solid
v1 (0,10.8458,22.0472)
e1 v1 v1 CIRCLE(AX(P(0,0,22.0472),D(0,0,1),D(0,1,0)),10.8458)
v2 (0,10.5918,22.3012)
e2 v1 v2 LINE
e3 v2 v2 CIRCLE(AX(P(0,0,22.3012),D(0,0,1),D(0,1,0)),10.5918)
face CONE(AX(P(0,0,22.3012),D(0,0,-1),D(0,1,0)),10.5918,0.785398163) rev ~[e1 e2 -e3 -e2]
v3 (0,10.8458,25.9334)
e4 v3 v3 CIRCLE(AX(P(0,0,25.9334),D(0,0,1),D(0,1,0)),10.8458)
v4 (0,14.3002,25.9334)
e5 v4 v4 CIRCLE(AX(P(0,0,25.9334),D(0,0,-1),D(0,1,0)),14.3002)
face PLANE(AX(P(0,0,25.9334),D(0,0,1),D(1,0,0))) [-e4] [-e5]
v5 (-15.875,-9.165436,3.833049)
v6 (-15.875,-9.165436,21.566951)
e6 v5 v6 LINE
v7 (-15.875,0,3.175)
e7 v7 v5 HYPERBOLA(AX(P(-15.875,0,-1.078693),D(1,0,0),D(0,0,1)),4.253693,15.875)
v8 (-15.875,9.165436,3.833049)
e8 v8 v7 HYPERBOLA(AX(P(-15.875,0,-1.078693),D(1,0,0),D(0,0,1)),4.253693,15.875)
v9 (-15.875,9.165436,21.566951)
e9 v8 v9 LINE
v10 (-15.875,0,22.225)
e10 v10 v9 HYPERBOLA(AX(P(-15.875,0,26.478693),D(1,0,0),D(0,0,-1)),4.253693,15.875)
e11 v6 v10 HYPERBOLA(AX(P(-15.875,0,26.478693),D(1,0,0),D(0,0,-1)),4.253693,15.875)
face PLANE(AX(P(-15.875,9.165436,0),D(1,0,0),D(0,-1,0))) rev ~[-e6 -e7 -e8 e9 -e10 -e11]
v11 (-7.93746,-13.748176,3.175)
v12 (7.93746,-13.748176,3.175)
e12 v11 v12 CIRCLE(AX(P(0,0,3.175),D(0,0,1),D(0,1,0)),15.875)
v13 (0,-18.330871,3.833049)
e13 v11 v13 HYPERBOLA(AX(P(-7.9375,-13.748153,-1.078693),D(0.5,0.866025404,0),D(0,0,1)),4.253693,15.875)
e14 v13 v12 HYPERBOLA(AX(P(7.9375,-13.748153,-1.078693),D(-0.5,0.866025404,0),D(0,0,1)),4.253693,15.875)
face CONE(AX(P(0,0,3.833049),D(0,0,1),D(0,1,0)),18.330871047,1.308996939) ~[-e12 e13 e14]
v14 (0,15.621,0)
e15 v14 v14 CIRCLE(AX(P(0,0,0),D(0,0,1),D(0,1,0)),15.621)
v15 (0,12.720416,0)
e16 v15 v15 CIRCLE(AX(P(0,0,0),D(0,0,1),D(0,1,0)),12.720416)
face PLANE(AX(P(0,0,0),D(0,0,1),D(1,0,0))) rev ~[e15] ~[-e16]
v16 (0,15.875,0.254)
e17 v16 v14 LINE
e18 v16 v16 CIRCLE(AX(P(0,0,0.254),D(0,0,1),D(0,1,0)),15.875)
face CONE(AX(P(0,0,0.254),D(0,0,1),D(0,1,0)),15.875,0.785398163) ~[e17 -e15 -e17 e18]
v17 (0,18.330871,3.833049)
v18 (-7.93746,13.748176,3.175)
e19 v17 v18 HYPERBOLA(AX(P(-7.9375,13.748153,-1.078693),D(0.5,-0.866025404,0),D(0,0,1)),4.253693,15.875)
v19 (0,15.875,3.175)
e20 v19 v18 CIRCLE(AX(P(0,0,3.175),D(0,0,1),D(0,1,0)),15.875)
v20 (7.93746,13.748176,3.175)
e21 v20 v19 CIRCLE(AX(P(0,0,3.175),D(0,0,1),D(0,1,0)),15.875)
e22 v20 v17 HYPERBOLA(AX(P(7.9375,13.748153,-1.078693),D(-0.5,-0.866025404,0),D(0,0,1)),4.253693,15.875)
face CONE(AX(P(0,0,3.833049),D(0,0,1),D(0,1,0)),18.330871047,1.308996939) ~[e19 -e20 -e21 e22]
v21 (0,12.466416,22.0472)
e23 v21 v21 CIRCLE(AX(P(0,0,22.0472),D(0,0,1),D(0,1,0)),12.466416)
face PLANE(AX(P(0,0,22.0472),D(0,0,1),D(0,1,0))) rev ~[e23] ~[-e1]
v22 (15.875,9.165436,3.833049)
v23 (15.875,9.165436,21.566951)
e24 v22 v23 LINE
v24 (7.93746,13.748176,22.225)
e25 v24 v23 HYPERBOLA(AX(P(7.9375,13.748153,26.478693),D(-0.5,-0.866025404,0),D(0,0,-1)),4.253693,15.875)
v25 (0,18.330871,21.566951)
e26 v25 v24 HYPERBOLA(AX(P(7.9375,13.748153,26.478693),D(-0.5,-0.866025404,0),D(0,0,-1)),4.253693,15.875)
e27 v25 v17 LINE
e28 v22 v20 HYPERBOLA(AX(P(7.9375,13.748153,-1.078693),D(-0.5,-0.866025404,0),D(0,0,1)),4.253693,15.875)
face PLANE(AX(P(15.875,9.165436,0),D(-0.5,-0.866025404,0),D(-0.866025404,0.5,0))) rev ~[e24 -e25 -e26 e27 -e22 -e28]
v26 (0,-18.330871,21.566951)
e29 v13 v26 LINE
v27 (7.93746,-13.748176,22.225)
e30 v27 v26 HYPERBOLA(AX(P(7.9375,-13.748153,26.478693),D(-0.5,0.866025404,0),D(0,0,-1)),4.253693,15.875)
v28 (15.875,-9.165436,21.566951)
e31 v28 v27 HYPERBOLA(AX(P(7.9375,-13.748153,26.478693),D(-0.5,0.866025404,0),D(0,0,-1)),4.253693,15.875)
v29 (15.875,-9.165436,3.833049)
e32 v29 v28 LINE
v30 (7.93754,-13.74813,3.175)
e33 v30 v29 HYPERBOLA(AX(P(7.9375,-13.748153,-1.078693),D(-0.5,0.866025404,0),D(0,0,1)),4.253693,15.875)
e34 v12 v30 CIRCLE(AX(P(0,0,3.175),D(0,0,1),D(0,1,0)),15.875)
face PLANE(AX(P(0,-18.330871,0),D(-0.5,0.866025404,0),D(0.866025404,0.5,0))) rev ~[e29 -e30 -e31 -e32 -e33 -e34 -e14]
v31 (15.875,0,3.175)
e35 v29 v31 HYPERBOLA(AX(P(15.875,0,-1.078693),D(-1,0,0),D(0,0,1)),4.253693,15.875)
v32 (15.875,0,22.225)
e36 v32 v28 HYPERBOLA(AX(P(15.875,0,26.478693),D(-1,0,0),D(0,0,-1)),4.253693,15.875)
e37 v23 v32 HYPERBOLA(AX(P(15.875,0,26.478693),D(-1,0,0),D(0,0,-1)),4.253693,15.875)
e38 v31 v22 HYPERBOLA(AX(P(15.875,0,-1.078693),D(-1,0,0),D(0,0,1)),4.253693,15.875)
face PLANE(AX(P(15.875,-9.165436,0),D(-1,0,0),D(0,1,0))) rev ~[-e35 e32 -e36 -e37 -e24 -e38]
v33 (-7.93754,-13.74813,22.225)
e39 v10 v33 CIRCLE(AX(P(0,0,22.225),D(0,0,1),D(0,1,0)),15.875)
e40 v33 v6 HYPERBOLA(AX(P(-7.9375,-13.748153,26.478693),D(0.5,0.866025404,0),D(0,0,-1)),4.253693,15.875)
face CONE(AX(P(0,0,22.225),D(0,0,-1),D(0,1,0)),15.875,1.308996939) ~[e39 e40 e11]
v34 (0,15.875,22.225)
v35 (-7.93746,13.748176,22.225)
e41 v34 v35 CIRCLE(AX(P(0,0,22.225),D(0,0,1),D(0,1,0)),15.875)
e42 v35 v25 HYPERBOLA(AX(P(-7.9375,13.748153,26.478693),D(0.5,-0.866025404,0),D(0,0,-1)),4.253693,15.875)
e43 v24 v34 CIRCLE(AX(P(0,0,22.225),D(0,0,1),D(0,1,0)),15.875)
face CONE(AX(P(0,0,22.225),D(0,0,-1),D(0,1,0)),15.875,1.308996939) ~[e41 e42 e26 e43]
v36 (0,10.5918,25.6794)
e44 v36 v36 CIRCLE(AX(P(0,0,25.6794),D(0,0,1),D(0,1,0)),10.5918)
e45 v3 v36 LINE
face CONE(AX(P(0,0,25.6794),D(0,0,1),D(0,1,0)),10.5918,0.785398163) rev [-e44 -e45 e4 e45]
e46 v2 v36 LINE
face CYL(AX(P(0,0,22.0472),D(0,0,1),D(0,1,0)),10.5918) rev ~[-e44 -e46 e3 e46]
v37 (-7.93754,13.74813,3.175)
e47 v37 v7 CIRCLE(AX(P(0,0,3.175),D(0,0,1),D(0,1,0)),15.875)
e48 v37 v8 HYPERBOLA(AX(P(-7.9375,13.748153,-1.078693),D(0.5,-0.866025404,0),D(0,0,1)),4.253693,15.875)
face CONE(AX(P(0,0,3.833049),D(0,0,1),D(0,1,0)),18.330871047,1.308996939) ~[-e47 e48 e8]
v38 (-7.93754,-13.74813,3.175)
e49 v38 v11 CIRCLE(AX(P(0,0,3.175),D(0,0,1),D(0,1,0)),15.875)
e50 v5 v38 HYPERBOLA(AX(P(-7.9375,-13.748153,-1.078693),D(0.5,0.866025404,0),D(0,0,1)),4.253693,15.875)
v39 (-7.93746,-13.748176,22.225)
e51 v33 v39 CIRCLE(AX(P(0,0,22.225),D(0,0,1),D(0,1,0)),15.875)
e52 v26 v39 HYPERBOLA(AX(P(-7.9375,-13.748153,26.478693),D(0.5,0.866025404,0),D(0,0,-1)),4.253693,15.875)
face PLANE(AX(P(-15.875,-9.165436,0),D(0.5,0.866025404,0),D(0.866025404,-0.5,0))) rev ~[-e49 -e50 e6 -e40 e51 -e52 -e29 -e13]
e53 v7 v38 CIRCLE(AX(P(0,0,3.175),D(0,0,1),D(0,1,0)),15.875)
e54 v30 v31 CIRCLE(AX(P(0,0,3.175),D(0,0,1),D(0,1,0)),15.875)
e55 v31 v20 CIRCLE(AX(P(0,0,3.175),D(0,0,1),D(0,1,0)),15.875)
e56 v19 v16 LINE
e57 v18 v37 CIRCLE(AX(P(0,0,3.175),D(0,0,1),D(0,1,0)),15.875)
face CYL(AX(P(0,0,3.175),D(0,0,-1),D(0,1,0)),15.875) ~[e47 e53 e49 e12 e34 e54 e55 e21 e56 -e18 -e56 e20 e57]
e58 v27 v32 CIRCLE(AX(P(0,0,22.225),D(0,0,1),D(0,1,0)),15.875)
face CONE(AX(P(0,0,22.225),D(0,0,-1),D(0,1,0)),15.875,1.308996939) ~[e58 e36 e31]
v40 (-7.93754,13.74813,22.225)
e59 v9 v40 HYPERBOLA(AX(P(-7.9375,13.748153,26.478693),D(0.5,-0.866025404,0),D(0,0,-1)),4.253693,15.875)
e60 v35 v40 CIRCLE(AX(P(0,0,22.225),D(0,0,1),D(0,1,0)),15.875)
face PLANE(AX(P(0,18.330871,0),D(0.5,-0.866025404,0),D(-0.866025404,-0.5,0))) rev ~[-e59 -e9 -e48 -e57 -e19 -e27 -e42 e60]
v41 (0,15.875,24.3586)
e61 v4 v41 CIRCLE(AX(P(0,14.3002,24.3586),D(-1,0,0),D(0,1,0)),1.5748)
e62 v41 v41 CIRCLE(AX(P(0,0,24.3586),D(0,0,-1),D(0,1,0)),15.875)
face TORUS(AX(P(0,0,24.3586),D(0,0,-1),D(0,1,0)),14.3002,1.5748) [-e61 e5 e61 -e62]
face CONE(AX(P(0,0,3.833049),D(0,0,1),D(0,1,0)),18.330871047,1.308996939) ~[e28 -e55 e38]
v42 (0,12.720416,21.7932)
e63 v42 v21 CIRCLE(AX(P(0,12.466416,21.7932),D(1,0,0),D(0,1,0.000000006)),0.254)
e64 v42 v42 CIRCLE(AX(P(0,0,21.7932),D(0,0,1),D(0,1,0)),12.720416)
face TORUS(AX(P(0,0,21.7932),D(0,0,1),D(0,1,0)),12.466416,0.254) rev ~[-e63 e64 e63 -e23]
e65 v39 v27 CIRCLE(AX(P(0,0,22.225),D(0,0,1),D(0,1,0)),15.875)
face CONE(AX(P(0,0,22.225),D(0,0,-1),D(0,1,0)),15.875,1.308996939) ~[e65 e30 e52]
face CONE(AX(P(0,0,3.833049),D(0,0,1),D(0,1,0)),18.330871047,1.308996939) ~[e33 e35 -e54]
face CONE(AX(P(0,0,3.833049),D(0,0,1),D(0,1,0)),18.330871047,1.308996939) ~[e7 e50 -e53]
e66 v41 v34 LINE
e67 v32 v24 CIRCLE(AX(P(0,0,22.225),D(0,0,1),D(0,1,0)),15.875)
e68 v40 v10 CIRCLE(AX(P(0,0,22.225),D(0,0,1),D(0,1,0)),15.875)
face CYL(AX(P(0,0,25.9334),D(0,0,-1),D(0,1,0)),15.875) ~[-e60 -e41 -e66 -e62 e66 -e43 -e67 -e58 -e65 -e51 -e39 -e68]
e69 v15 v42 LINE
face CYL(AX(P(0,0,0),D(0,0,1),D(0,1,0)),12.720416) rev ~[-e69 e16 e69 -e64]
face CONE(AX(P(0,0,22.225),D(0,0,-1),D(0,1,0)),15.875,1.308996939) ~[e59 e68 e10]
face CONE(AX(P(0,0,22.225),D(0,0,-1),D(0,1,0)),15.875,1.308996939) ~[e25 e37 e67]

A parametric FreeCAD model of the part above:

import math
import FreeCAD as App
import Part
import Sketcher
from FreeCAD import Vector
Q = App.Units.Quantity


def edges_at(feature, points):
    """Names of the edges that pass closest to the given points."""
    edges = feature.Shape.Edges
    near = lambda p: min(range(len(edges)), key=lambda i: edges[i].distToShape(Part.Vertex(*p))[0])
    return sorted({f"Edge{near(p) + 1}" for p in points})

doc = App.newDocument("Part")
body = doc.addObject("PartDesign::Body", "Body")

sketch1 = body.newObject("Sketcher::SketchObject", "Sketch")
sketch1.AttachmentSupport = (doc.getObject("XY_Plane"), [""])
sketch1.MapMode = "FlatFace"
sketch1.addGeometry(Part.LineSegment(Vector(0, 18, 0), Vector(-16, 9, 0)), False)
sketch1.addGeometry(Part.LineSegment(Vector(-16, 9, 0), Vector(-16, -9, 0)), False)
sketch1.addGeometry(Part.LineSegment(Vector(-16, -9, 0), Vector(0, -18, 0)), False)
sketch1.addGeometry(Part.LineSegment(Vector(0, -18, 0), Vector(16, -9, 0)), False)
sketch1.addGeometry(Part.LineSegment(Vector(16, -9, 0), Vector(16, 9, 0)), False)
sketch1.addGeometry(Part.LineSegment(Vector(16, 9, 0), Vector(0, 18, 0)), False)
sketch1.addConstraint(Sketcher.Constraint("Coincident", 0, 2, 1, 1))
sketch1.addConstraint(Sketcher.Constraint("Coincident", 1, 2, 2, 1))
sketch1.addConstraint(Sketcher.Constraint("Coincident", 2, 2, 3, 1))
sketch1.addConstraint(Sketcher.Constraint("Coincident", 3, 2, 4, 1))
sketch1.addConstraint(Sketcher.Constraint("Coincident", 4, 2, 5, 1))
sketch1.addConstraint(Sketcher.Constraint("Coincident", 5, 2, 0, 1))
sketch1.addConstraint(Sketcher.Constraint("Vertical", 1))
sketch1.addConstraint(Sketcher.Constraint("Vertical", 4))
sketch1.addConstraint(Sketcher.Constraint("Symmetric", 0, 2, 3, 2, -1, 1))
sketch1.addConstraint(Sketcher.Constraint("Symmetric", 2, 2, 5, 2, -1, 1))
sketch1.addConstraint(Sketcher.Constraint("PointOnObject", 2, 2, -2))
sketch1.addConstraint(Sketcher.Constraint("Parallel", 2, 5))
sketch1.addConstraint(Sketcher.Constraint("Horizontal", 1, 2, 3, 2))
sketch1.addConstraint(Sketcher.Constraint("Angle", 0, Q("-150 deg")))
sketch1.addConstraint(Sketcher.Constraint("DistanceX", 1, 2, 3, 2, Q("1.25 in")))
sketch1.addConstraint(Sketcher.Constraint("DistanceY", 1, 2, 1, 1, 18.330871))
pad1 = body.newObject("PartDesign::Pad", "Pad")
pad1.Profile = sketch1
pad1.Length = Q("1.021 in")

sketch2 = body.newObject("Sketcher::SketchObject", "Sketch001")
sketch2.AttachmentSupport = (doc.getObject("YZ_Plane"), [""])
sketch2.MapMode = "FlatFace"
sketch2.addGeometry(Part.LineSegment(Vector(20.79, 25.93, 0), Vector(15.88, 25.93, 0)), False)
sketch2.addGeometry(Part.LineSegment(Vector(15.88, 25.93, 0), Vector(15.88, 22.23, 0)), False)
sketch2.addGeometry(Part.LineSegment(Vector(15.88, 22.23, 0), Vector(18.33, 21.57, 0)), False)
sketch2.addGeometry(Part.LineSegment(Vector(18.33, 21.57, 0), Vector(18.33, 3.83, 0)), False)
sketch2.addGeometry(Part.LineSegment(Vector(18.33, 3.83, 0), Vector(15.88, 3.17, 0)), False)
sketch2.addGeometry(Part.LineSegment(Vector(15.88, 3.17, 0), Vector(15.88, 0, 0)), False)
sketch2.addGeometry(Part.LineSegment(Vector(15.88, 0, 0), Vector(20.79, 0, 0)), False)
sketch2.addGeometry(Part.LineSegment(Vector(20.79, 0, 0), Vector(20.79, 25.93, 0)), False)
sketch2.addGeometry(Part.LineSegment(Vector(10.59, 25.93, 0), Vector(0, 25.93, 0)), False)
sketch2.addGeometry(Part.LineSegment(Vector(0, 25.93, 0), Vector(0, 0, 0)), False)
sketch2.addGeometry(Part.LineSegment(Vector(0, 0, 0), Vector(12.72, 0, 0)), False)
sketch2.addGeometry(Part.LineSegment(Vector(12.72, 0, 0), Vector(12.72, 21.79, 0)), False)
sketch2.addGeometry(Part.ArcOfCircle(Part.Circle(Vector(12.47, 21.79, 0), Vector(0, 0, 1), 0.25), math.radians(0), math.radians(90)), False)
sketch2.addGeometry(Part.LineSegment(Vector(12.47, 22.05, 0), Vector(10.59, 22.05, 0)), False)
sketch2.addGeometry(Part.LineSegment(Vector(10.59, 22.05, 0), Vector(10.59, 25.93, 0)), False)
sketch2.addConstraint(Sketcher.Constraint("Coincident", 0, 2, 1, 1))
sketch2.addConstraint(Sketcher.Constraint("Coincident", 1, 2, 2, 1))
sketch2.addConstraint(Sketcher.Constraint("Coincident", 2, 2, 3, 1))
sketch2.addConstraint(Sketcher.Constraint("Coincident", 3, 2, 4, 1))
sketch2.addConstraint(Sketcher.Constraint("Coincident", 4, 2, 5, 1))
sketch2.addConstraint(Sketcher.Constraint("Coincident", 5, 2, 6, 1))
sketch2.addConstraint(Sketcher.Constraint("Coincident", 6, 2, 7, 1))
sketch2.addConstraint(Sketcher.Constraint("Coincident", 7, 2, 0, 1))
sketch2.addConstraint(Sketcher.Constraint("Coincident", 8, 2, 9, 1))
sketch2.addConstraint(Sketcher.Constraint("Coincident", 9, 2, 10, 1))
sketch2.addConstraint(Sketcher.Constraint("Coincident", 10, 2, 11, 1))
sketch2.addConstraint(Sketcher.Constraint("Tangent", 11, 2, 12, 1))
sketch2.addConstraint(Sketcher.Constraint("Tangent", 12, 2, 13, 1))
sketch2.addConstraint(Sketcher.Constraint("Coincident", 13, 2, 14, 1))
sketch2.addConstraint(Sketcher.Constraint("Coincident", 14, 2, 8, 1))
sketch2.addConstraint(Sketcher.Constraint("Horizontal", 0))
sketch2.addConstraint(Sketcher.Constraint("Vertical", 1))
sketch2.addConstraint(Sketcher.Constraint("Vertical", 3))
sketch2.addConstraint(Sketcher.Constraint("Vertical", 5))
sketch2.addConstraint(Sketcher.Constraint("Horizontal", 6))
sketch2.addConstraint(Sketcher.Constraint("Vertical", 7))
sketch2.addConstraint(Sketcher.Constraint("Horizontal", 8))
sketch2.addConstraint(Sketcher.Constraint("Vertical", 9))
sketch2.addConstraint(Sketcher.Constraint("Horizontal", 10))
sketch2.addConstraint(Sketcher.Constraint("Vertical", 11))
sketch2.addConstraint(Sketcher.Constraint("Horizontal", 13))
sketch2.addConstraint(Sketcher.Constraint("Vertical", 14))
sketch2.addConstraint(Sketcher.Constraint("Coincident", 9, 2, -1, 1))
sketch2.addConstraint(Sketcher.Constraint("PointOnObject", 5, 2, -1))
sketch2.addConstraint(Sketcher.Constraint("Horizontal", 7, 2, 8, 2))
sketch2.addConstraint(Sketcher.Constraint("Vertical", 1, 2, 4, 2))
sketch2.addConstraint(Sketcher.Constraint("Equal", 2, 4))
sketch2.addConstraint(Sketcher.Constraint("Radius", 12, Q("0.01 in")))
sketch2.addConstraint(Sketcher.Constraint("Angle", 2, Q("-15 deg")))
sketch2.addConstraint(Sketcher.Constraint("DistanceX", 8, 2, 8, 1, Q("0.417 in")))
sketch2.addConstraint(Sketcher.Constraint("DistanceY", 1, 2, 1, 1, Q("0.146 in")))
sketch2.addConstraint(Sketcher.Constraint("DistanceY", 5, 2, 5, 1, Q("0.125 in")))
sketch2.addConstraint(Sketcher.Constraint("DistanceY", 7, 1, 7, 2, Q("1.021 in")))
sketch2.addConstraint(Sketcher.Constraint("DistanceY", 11, 1, 11, 2, Q("0.858 in")))
sketch2.addConstraint(Sketcher.Constraint("DistanceX", -1, 1, 0, 2, Q("0.625 in")))
sketch2.addConstraint(Sketcher.Constraint("DistanceX", 0, 2, 0, 1, 4.911742))
sketch2.addConstraint(Sketcher.Constraint("DistanceX", 10, 1, 10, 2, 12.720416))
sketch2.addConstraint(Sketcher.Constraint("DistanceY", 3, 2, 3, 1, 17.733903))
groove = body.newObject("PartDesign::Groove", "Groove")
groove.Profile = sketch2
groove.ReferenceAxis = (sketch2, ["V_Axis"])
groove.Angle = 360
doc.recompute()

fillet = body.newObject("PartDesign::Fillet", "Fillet")
fillet.Base = (groove, edges_at(groove, [(0, -15.875, 25.933)]))
fillet.Radius = Q("0.062 in")
doc.recompute()

chamfer = body.newObject("PartDesign::Chamfer", "Chamfer")
chamfer.Base = (fillet, edges_at(fillet, [(0, -15.875, 0)]))
chamfer.Size = Q("0.01 in")
doc.recompute()

chamfer2 = body.newObject("PartDesign::Chamfer", "Chamfer001")
chamfer2.Base = (chamfer, edges_at(chamfer, [(0, -10.592, 25.933), (0, -10.592, 22.047)]))
chamfer2.Size = Q("0.01 in")

doc.recompute()
